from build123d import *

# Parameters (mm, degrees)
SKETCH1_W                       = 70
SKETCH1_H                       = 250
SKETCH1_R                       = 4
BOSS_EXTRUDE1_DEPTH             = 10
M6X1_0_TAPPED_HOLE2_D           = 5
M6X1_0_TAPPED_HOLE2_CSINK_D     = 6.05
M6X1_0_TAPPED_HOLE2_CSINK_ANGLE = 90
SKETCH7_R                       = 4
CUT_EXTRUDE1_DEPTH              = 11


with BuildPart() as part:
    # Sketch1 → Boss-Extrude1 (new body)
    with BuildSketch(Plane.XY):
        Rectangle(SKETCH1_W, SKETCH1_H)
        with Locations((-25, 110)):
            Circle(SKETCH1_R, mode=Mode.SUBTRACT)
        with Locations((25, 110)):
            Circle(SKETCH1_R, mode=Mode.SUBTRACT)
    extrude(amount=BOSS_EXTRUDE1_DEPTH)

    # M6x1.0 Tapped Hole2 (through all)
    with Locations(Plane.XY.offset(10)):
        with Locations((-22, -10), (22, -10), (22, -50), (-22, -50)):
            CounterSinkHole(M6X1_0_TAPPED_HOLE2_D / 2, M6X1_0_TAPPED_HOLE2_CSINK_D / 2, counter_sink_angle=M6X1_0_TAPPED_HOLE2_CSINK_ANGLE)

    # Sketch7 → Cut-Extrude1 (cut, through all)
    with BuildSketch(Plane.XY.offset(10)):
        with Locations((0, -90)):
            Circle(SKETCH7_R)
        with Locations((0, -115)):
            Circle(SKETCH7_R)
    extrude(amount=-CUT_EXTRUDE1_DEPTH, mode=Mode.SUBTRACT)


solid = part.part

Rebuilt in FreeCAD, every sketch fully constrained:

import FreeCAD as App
import Part
import Sketcher

V = App.Vector
Q = App.Units.Quantity

doc = App.newDocument("Part")
body = doc.addObject("PartDesign::Body", "Body")

sketch1 = doc.addObject("Sketcher::SketchObject", "Sketch")
body.addObject(sketch1)
sketch1.AttachmentSupport = (doc.XY_Plane, [""])
sketch1.MapMode = "FlatFace"
sketch1.addGeometry(Part.LineSegment(V(-35, 125, 0), V(-35, -125, 0)), False)
sketch1.addGeometry(Part.LineSegment(V(-35, -125, 0), V(35, -125, 0)), False)
sketch1.addGeometry(Part.LineSegment(V(35, -125, 0), V(35, 125, 0)), False)
sketch1.addGeometry(Part.LineSegment(V(35, 125, 0), V(-35, 125, 0)), False)
sketch1.addGeometry(Part.Circle(V(-25, 110, 0), V(0, 0, 1), 4), False)
sketch1.addGeometry(Part.Circle(V(25, 110, 0), V(0, 0, 1), 4), False)
sketch1.addConstraint(Sketcher.Constraint("Coincident", 0, 2, 1, 1))
sketch1.addConstraint(Sketcher.Constraint("Coincident", 1, 2, 2, 1))
sketch1.addConstraint(Sketcher.Constraint("Coincident", 2, 2, 3, 1))
sketch1.addConstraint(Sketcher.Constraint("Coincident", 3, 2, 0, 1))
sketch1.addConstraint(Sketcher.Constraint("Vertical", 0))
sketch1.addConstraint(Sketcher.Constraint("Horizontal", 1))
sketch1.addConstraint(Sketcher.Constraint("Vertical", 2))
sketch1.addConstraint(Sketcher.Constraint("Horizontal", 3))
sketch1.addConstraint(Sketcher.Constraint("Equal", 4, 5))
sketch1.addConstraint(Sketcher.Constraint("Symmetric", 0, 2, 2, 2, -1, 1))
sketch1.addConstraint(Sketcher.Constraint("Symmetric", 4, 3, 5, 3, -2))
sketch1.addConstraint(Sketcher.Constraint("Diameter", 4, Q("8 mm")))
sketch1.addConstraint(Sketcher.Constraint("DistanceX", 1, 1, 1, 2, Q("70 mm")))
sketch1.addConstraint(Sketcher.Constraint("DistanceY", 0, 2, 0, 1, Q("250 mm")))
sketch1.addConstraint(Sketcher.Constraint("DistanceX", 4, 3, -1, 1, Q("25 mm")))
sketch1.addConstraint(Sketcher.Constraint("DistanceY", -1, 1, 4, 3, Q("110 mm")))
pad1 = doc.addObject("PartDesign::Pad", "Pad")
body.addObject(pad1)
pad1.Profile = sketch1
pad1.Length = 10

sketch2 = doc.addObject("Sketcher::SketchObject", "Sketch001")
body.addObject(sketch2)
sketch2.AttachmentSupport = (doc.XY_Plane, [""])
sketch2.MapMode = "FlatFace"
sketch2.AttachmentOffset = App.Placement(V(0, 0, 10), App.Rotation())
sketch2.addGeometry(Part.Circle(V(-22, -10, 0), V(0, 0, 1), 2.5), False)
sketch2.addGeometry(Part.Circle(V(22, -10, 0), V(0, 0, 1), 2.5), False)
sketch2.addGeometry(Part.Circle(V(22, -50, 0), V(0, 0, 1), 2.5), False)
sketch2.addGeometry(Part.Circle(V(-22, -50, 0), V(0, 0, 1), 2.5), False)
sketch2.addConstraint(Sketcher.Constraint("Equal", 0, 1))
sketch2.addConstraint(Sketcher.Constraint("Equal", 1, 2))
sketch2.addConstraint(Sketcher.Constraint("Equal", 2, 3))
sketch2.addConstraint(Sketcher.Constraint("Symmetric", 0, 3, 1, 3, -2))
sketch2.addConstraint(Sketcher.Constraint("Symmetric", 2, 3, 3, 3, -2))
sketch2.addConstraint(Sketcher.Constraint("Vertical", 1, 3, 2, 3))
sketch2.addConstraint(Sketcher.Constraint("Diameter", 0, Q("5 mm")))
sketch2.addConstraint(Sketcher.Constraint("DistanceX", 0, 3, -1, 1, Q("22 mm")))
sketch2.addConstraint(Sketcher.Constraint("DistanceY", 0, 3, -1, 1, Q("10 mm")))
sketch2.addConstraint(Sketcher.Constraint("DistanceY", 2, 3, -1, 1, Q("50 mm")))
doc.recompute()
hole = doc.addObject("PartDesign::Hole", "Hole")
body.addObject(hole)
hole.Profile = sketch2
hole.ThreadType = "None"
hole.Diameter = 5
hole.DepthType = "ThroughAll"
hole.HoleCutType = "Countersink"
hole.HoleCutDiameter = 6.05
hole.HoleCutCountersinkAngle = 90

sketch3 = doc.addObject("Sketcher::SketchObject", "Sketch002")
body.addObject(sketch3)
sketch3.AttachmentSupport = (doc.XY_Plane, [""])
sketch3.MapMode = "FlatFace"
sketch3.AttachmentOffset = App.Placement(V(0, 0, 10), App.Rotation())
sketch3.addGeometry(Part.Circle(V(0, -90, 0), V(0, 0, 1), 4), False)
sketch3.addGeometry(Part.Circle(V(0, -115, 0), V(0, 0, 1), 4), False)
sketch3.addConstraint(Sketcher.Constraint("Equal", 0, 1))
sketch3.addConstraint(Sketcher.Constraint("PointOnObject", 0, 3, -2))
sketch3.addConstraint(Sketcher.Constraint("PointOnObject", 1, 3, -2))
sketch3.addConstraint(Sketcher.Constraint("Diameter", 0, Q("8 mm")))
sketch3.addConstraint(Sketcher.Constraint("DistanceY", 0, 3, -1, 1, Q("90 mm")))
sketch3.addConstraint(Sketcher.Constraint("DistanceY", 1, 3, -1, 1, Q("115 mm")))
pocket1 = doc.addObject("PartDesign::Pocket", "Pocket")
body.addObject(pocket1)
pocket1.Profile = sketch3
pocket1.Type = "ThroughAll"

doc.recompute()
